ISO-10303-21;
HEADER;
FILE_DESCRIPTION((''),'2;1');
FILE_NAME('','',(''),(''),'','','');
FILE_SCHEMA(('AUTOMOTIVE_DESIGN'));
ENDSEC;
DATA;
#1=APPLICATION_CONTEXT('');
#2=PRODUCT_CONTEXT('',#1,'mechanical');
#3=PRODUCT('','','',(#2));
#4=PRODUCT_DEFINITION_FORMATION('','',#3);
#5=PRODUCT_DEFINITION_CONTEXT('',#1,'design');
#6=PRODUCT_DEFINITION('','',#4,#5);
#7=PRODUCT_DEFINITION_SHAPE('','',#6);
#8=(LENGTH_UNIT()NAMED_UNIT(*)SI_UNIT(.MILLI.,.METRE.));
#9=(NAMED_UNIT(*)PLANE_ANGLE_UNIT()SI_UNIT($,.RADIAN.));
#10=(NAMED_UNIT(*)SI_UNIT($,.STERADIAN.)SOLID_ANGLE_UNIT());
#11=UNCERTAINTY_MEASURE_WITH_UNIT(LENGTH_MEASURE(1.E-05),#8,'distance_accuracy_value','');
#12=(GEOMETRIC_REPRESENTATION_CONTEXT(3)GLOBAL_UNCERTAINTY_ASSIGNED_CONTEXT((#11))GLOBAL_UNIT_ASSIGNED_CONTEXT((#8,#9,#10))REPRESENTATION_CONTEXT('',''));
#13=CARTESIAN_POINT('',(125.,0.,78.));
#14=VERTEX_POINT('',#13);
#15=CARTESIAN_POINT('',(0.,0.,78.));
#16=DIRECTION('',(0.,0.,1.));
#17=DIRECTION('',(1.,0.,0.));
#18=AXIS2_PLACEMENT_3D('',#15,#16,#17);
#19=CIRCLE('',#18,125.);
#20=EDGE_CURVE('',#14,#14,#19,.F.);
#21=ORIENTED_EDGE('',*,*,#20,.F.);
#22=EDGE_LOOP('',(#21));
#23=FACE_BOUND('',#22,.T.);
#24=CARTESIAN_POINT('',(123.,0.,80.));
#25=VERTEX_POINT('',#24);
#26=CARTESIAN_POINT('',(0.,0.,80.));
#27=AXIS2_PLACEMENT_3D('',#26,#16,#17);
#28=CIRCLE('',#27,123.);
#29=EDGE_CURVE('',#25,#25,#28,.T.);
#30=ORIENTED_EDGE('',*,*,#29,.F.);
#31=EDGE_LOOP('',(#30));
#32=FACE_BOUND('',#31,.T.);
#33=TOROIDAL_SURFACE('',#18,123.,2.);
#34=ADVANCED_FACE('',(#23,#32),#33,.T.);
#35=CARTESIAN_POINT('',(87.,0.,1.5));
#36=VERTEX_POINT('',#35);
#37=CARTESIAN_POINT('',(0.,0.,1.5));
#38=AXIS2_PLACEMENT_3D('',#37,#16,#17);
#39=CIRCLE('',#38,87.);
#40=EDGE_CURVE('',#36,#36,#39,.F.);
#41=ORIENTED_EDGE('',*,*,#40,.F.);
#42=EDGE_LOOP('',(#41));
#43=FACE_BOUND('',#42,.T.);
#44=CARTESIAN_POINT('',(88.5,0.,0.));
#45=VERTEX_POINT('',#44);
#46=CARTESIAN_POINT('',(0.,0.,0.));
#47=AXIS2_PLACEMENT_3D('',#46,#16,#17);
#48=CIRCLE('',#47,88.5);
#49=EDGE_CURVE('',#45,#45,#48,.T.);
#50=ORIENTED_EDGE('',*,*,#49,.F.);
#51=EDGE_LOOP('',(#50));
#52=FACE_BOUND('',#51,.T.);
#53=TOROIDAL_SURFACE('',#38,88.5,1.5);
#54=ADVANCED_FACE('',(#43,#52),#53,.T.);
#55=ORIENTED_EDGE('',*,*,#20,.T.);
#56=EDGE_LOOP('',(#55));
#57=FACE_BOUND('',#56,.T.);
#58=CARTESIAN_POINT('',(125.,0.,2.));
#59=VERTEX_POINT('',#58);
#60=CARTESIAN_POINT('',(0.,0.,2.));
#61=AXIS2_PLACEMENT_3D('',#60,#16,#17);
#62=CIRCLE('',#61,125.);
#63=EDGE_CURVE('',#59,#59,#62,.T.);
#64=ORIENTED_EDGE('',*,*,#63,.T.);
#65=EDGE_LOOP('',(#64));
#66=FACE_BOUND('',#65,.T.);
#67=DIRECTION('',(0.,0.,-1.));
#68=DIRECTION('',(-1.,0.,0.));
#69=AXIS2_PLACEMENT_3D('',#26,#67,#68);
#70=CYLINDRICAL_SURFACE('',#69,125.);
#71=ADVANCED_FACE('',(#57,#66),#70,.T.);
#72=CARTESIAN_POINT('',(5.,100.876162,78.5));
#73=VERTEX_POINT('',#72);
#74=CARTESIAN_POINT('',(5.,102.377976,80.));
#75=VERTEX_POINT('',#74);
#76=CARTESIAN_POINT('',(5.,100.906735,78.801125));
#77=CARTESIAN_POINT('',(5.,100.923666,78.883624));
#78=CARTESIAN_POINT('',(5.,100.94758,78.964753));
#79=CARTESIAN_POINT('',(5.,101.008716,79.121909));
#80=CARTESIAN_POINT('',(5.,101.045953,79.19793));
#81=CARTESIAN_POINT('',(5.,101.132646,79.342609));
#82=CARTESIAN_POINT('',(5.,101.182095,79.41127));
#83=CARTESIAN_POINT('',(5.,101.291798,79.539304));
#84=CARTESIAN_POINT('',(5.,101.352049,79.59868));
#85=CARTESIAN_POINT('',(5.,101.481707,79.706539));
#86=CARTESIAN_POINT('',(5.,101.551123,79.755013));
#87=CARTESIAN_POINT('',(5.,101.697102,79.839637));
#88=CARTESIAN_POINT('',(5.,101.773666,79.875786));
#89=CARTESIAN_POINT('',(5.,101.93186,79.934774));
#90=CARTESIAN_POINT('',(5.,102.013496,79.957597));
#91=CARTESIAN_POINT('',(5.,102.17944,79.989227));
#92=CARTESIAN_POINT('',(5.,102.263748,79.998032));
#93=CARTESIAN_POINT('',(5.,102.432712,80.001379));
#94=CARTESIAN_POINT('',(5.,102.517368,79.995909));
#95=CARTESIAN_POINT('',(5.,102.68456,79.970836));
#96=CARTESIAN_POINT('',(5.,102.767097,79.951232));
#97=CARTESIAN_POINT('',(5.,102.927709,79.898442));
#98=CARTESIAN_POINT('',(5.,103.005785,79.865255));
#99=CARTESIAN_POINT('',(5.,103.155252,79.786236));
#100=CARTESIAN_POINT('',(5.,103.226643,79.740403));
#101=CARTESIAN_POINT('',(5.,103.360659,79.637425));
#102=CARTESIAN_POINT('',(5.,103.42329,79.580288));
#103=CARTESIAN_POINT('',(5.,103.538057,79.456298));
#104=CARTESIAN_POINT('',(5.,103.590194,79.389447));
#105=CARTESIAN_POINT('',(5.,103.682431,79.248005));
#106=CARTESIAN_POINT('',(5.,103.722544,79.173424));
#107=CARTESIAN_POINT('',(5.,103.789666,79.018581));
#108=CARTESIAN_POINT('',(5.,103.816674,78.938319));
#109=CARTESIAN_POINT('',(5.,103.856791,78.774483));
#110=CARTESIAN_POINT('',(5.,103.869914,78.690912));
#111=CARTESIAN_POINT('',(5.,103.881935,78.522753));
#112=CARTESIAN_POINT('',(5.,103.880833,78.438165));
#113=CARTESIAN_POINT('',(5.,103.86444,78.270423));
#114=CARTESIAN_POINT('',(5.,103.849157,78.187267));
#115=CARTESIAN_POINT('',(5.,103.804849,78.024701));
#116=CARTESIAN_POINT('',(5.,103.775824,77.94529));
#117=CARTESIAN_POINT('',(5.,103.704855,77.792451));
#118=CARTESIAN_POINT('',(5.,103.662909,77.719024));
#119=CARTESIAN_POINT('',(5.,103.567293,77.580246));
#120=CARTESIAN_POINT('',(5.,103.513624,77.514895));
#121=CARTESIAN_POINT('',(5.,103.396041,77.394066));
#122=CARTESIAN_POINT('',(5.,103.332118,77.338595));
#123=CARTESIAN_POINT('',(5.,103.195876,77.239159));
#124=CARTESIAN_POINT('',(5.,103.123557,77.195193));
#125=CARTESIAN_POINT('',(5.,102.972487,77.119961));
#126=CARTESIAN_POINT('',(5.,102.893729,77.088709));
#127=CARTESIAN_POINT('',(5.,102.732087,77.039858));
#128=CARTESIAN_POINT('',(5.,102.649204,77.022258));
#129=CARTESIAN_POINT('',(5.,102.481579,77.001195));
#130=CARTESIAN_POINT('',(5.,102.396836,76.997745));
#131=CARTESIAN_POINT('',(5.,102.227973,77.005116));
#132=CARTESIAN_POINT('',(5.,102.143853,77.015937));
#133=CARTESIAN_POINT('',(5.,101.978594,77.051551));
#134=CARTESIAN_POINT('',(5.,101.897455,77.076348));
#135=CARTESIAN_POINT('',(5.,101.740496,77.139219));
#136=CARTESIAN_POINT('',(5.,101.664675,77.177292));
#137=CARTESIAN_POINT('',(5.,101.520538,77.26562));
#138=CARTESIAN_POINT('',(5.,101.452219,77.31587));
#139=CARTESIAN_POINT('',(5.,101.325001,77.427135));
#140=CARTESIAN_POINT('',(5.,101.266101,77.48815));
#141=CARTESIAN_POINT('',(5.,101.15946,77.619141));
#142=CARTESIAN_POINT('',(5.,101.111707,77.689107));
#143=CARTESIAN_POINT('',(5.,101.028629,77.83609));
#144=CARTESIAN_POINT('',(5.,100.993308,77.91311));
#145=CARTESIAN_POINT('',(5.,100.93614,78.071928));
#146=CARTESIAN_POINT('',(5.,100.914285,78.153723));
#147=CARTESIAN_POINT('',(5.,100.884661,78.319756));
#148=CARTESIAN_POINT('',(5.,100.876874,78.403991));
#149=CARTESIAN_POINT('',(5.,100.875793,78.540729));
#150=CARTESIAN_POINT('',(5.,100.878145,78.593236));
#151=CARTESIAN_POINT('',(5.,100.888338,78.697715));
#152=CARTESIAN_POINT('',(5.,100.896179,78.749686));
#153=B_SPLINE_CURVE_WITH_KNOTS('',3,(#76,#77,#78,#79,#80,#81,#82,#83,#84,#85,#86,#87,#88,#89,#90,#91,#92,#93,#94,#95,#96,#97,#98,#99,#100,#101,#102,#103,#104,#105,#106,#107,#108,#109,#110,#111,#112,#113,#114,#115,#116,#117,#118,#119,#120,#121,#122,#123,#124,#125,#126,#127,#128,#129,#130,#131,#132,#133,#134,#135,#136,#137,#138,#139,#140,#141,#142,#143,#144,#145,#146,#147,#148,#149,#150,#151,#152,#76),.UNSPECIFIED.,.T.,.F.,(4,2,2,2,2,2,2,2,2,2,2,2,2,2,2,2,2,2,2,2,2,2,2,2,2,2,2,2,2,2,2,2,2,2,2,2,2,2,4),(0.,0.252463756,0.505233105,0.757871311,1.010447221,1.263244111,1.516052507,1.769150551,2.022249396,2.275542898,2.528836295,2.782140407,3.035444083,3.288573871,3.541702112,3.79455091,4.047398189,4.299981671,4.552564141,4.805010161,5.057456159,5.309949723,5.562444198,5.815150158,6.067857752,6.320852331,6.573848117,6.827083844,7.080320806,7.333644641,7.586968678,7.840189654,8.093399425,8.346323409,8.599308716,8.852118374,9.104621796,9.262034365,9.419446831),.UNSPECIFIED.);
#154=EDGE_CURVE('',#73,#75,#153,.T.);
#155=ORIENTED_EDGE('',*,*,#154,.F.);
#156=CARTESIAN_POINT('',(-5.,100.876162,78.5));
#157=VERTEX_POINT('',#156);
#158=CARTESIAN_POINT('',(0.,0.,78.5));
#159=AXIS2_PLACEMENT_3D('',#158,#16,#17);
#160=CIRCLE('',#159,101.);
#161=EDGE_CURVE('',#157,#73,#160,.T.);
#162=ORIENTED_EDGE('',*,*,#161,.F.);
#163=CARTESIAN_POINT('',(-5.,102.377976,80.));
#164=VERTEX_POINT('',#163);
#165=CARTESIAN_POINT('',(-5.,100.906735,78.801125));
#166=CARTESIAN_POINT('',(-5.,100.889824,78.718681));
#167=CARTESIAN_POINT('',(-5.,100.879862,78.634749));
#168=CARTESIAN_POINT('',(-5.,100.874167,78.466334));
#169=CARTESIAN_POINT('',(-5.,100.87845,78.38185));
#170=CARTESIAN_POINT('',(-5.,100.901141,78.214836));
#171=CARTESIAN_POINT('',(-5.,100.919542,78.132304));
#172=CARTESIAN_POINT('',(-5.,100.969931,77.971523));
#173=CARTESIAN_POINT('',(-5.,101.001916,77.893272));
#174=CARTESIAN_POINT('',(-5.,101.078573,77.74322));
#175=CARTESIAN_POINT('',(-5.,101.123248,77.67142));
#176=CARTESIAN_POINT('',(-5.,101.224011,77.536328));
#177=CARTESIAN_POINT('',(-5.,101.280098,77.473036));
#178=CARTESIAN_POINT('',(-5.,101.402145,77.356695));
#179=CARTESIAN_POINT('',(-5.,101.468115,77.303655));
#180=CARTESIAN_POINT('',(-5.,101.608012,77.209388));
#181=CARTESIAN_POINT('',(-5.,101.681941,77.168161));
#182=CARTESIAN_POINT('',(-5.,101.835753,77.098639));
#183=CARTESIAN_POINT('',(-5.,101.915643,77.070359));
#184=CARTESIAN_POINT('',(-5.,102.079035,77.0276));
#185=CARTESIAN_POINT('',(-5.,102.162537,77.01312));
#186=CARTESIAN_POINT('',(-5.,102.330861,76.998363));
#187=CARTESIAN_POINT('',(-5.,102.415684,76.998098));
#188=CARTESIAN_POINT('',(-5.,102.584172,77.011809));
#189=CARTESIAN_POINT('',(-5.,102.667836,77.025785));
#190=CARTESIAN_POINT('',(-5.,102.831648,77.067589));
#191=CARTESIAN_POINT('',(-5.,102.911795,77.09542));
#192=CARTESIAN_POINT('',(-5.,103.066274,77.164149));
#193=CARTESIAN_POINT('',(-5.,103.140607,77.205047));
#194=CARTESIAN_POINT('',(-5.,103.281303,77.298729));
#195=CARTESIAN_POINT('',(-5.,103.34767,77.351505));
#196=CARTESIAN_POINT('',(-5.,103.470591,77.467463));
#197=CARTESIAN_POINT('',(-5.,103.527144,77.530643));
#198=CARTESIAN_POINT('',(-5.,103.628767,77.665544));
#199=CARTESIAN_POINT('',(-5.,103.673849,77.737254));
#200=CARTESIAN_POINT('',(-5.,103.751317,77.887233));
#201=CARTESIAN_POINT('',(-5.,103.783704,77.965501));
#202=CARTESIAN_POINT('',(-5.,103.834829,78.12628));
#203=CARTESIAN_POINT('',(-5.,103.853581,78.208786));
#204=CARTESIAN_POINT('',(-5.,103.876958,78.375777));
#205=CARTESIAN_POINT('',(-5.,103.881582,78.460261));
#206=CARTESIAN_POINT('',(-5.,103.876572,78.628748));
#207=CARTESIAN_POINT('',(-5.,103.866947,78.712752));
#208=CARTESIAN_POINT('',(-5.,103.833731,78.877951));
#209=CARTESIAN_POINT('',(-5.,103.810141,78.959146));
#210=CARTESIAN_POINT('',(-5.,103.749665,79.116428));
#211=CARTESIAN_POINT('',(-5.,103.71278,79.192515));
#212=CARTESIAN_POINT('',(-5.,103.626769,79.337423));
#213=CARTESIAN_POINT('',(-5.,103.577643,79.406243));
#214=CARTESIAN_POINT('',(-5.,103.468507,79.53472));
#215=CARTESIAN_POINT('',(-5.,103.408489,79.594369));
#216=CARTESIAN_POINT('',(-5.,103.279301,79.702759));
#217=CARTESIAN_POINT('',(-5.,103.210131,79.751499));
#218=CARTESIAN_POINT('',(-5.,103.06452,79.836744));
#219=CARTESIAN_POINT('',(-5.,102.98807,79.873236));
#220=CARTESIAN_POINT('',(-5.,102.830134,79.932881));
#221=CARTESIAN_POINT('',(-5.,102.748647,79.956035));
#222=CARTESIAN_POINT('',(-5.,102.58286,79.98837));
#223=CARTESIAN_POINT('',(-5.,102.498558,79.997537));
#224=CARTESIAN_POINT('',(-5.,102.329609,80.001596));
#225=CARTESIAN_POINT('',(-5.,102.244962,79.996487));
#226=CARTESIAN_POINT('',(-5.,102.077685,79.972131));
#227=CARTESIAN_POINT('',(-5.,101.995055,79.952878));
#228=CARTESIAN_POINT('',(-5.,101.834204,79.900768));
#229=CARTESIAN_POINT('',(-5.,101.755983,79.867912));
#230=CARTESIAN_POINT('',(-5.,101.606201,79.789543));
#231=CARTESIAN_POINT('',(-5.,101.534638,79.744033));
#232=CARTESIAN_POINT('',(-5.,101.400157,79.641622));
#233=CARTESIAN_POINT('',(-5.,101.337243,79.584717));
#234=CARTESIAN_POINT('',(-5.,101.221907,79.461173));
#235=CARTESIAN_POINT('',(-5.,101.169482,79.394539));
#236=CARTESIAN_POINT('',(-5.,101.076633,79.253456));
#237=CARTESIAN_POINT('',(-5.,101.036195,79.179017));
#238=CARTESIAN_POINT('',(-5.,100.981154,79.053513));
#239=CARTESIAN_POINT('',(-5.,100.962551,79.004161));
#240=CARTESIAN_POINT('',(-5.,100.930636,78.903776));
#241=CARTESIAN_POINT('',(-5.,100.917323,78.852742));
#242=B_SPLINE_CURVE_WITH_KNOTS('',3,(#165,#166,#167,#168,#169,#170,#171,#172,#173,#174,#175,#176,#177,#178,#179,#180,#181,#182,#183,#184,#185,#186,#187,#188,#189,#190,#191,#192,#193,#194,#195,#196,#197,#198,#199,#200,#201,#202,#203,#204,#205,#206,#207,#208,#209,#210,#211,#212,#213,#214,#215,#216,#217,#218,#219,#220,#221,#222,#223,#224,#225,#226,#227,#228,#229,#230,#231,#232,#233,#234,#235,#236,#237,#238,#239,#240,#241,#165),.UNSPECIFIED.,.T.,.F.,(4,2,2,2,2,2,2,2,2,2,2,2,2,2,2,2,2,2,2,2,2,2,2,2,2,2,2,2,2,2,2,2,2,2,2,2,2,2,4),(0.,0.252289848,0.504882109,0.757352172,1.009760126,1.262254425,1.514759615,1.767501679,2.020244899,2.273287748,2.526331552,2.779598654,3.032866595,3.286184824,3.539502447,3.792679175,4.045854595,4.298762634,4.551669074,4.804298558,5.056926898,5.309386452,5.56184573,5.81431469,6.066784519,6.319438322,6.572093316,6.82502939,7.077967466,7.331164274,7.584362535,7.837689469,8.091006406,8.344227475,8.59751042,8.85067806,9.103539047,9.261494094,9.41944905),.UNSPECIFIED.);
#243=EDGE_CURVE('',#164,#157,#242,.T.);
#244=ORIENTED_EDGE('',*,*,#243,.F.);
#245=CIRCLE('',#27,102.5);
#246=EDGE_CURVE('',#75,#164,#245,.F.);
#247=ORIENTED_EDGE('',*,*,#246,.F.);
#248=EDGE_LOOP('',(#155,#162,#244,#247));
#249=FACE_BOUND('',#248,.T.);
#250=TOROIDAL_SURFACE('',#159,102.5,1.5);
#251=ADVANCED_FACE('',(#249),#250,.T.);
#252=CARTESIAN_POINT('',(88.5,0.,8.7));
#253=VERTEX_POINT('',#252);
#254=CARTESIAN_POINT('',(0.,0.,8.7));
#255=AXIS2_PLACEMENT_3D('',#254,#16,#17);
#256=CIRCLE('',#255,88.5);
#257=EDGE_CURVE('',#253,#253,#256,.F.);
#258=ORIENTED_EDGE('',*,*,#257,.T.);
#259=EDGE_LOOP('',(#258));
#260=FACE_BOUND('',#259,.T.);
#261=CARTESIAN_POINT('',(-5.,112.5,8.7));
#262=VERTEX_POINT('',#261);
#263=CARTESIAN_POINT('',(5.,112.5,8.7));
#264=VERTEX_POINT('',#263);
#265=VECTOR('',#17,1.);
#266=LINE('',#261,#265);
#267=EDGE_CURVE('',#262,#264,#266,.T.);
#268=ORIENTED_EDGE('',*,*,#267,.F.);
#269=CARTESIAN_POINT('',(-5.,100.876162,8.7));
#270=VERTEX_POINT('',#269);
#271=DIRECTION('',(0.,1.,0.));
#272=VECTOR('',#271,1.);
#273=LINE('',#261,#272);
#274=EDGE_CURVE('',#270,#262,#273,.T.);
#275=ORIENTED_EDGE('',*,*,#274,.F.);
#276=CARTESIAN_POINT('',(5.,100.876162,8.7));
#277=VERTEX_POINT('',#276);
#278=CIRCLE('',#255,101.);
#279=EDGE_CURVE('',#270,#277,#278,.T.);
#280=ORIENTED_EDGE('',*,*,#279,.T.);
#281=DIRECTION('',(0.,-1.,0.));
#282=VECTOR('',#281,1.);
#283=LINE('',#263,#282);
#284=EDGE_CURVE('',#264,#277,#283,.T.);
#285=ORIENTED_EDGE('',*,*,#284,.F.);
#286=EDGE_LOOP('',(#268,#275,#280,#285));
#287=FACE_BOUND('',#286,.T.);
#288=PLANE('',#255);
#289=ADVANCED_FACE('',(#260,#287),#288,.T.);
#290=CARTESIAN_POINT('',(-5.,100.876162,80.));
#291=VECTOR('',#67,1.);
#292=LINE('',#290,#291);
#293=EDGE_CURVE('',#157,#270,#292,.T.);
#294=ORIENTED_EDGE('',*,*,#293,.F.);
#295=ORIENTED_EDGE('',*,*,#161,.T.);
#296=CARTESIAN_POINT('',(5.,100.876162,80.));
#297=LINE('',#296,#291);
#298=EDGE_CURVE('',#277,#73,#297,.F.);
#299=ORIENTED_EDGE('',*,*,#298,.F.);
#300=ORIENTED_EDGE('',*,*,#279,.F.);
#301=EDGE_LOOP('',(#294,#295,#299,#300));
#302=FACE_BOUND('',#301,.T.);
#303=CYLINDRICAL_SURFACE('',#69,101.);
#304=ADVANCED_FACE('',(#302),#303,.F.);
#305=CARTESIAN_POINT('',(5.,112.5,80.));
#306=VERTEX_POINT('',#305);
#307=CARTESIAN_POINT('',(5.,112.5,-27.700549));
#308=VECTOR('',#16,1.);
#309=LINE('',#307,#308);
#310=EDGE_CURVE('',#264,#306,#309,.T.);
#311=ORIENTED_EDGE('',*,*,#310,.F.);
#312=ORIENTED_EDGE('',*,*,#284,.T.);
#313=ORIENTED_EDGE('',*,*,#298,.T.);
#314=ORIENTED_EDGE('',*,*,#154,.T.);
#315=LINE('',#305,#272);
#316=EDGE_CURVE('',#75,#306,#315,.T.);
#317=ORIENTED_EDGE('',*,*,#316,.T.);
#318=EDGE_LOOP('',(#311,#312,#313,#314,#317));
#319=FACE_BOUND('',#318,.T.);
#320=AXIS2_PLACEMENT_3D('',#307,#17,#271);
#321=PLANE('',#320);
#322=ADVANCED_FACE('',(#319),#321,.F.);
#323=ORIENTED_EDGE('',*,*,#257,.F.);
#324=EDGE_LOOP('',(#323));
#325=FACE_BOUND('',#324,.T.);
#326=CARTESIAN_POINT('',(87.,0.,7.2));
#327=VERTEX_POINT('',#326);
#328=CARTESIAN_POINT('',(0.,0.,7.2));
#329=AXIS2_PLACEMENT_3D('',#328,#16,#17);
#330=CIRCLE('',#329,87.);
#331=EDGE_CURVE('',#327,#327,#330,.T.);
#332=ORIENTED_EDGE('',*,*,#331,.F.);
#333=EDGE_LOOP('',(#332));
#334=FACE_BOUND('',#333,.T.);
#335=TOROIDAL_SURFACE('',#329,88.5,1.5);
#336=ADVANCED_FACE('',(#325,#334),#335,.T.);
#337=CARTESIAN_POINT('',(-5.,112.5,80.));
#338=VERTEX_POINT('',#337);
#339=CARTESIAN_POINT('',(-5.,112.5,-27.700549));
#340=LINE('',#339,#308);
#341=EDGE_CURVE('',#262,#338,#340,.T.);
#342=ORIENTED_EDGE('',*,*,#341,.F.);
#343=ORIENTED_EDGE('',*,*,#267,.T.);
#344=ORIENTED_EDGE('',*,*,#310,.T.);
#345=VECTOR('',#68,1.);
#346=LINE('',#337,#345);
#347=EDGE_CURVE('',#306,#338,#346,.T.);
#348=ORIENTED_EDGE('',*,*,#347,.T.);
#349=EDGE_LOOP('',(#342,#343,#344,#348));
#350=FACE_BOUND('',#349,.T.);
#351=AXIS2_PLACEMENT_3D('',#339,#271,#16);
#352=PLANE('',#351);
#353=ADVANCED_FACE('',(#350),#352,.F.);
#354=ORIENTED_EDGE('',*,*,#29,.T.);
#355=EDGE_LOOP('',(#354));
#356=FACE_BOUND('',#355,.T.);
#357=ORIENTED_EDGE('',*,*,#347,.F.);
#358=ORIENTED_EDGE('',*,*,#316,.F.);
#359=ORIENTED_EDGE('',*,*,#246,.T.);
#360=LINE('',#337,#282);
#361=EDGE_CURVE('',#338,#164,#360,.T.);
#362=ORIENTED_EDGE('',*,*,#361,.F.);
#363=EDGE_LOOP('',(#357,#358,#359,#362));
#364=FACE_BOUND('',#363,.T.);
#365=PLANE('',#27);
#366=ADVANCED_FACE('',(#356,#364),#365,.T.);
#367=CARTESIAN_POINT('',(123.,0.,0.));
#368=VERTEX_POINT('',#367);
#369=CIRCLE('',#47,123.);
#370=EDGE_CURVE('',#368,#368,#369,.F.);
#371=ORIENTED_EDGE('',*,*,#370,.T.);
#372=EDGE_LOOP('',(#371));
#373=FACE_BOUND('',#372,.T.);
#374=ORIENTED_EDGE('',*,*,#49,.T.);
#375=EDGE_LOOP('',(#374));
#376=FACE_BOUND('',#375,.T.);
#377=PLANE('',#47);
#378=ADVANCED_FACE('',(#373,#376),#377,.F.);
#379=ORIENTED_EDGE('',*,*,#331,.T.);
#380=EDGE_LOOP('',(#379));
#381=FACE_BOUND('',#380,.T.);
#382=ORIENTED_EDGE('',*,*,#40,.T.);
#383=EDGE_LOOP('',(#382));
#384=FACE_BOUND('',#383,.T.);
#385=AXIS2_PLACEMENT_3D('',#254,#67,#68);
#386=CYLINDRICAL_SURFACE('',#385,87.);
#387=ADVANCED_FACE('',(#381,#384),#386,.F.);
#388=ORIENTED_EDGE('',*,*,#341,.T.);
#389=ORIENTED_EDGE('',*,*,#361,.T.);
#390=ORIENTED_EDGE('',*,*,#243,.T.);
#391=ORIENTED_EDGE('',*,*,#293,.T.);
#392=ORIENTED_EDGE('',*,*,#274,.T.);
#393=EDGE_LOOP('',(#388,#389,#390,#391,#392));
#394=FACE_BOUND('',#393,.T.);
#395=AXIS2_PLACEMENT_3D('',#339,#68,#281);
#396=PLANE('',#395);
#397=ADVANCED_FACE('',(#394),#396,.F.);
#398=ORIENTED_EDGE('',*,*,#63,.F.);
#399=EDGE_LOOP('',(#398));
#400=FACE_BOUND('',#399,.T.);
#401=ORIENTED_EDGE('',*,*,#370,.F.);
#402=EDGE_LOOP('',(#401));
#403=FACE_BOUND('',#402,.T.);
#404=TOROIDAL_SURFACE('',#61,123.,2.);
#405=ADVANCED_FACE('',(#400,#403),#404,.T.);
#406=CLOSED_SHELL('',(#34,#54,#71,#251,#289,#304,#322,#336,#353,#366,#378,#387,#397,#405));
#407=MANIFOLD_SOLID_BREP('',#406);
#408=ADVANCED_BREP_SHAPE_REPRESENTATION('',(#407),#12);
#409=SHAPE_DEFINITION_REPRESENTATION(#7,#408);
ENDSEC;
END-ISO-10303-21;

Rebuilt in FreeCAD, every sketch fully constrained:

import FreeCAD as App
import Part
import Sketcher
from FreeCAD import Vector
Q = App.Units.Quantity


def edges_at(feature, points):
    """Names of the edges that pass closest to the given points."""
    edges = feature.Shape.Edges
    near = lambda p: min(range(len(edges)), key=lambda i: edges[i].distToShape(Part.Vertex(*p))[0])
    return sorted({f"Edge{near(p) + 1}" for p in points})


def add_polygon(sketch, points):
    """Adds a closed chain of lines whose ends are joined by coincident constraints."""
    first, n = sketch.GeometryCount, len(points)
    for a, b in zip(points, points[1:] + points[:1]):
        sketch.addGeometry(Part.LineSegment(App.Vector(*a, 0), App.Vector(*b, 0)), False)
    for i in range(n):
        sketch.addConstraint(Sketcher.Constraint("Coincident", first + i, 2, first + (i + 1) % n, 1))

doc = App.newDocument("Part")
body = doc.addObject("PartDesign::Body", "Body")

# Sketch on XY plane
sketch1 = body.newObject("Sketcher::SketchObject", "Sketch")
sketch1.AttachmentSupport = (doc.getObject("XY_Plane"), [""])
sketch1.MapMode = "FlatFace"
sketch1.addGeometry(Part.Circle(Vector(0, 0, 0), Vector(0, 0, 1), 125), False)
sketch1.addGeometry(Part.Circle(Vector(0, 0, 0), Vector(0, 0, 1), 101), False)
sketch1.addConstraint(Sketcher.Constraint("Coincident", 0, 3, -1, 1))
sketch1.addConstraint(Sketcher.Constraint("Coincident", 1, 3, -1, 1))
sketch1.addConstraint(Sketcher.Constraint("Diameter", 0, Q("250 mm")))
sketch1.addConstraint(Sketcher.Constraint("Diameter", 1, Q("202 mm")))
pad1 = body.newObject("PartDesign::Pad", "Pad")
pad1.Profile = sketch1
pad1.Length = 80
doc.recompute()

fillet = body.newObject("PartDesign::Fillet", "Fillet")
fillet.Base = (pad1, edges_at(pad1, [(-125, 0, 0), (-125, 0, 80)]))
fillet.Radius = 2

# Sketch on XY plane
sketch2 = body.newObject("Sketcher::SketchObject", "Sketch001")
sketch2.AttachmentSupport = (doc.getObject("XY_Plane"), [""])
sketch2.MapMode = "FlatFace"
sketch2.addGeometry(Part.Circle(Vector(0, 0, 0), Vector(0, 0, 1), 101), False)
sketch2.addGeometry(Part.Circle(Vector(0, 0, 0), Vector(0, 0, 1), 87), False)
sketch2.addConstraint(Sketcher.Constraint("Coincident", 0, 3, -1, 1))
sketch2.addConstraint(Sketcher.Constraint("Coincident", 1, 3, -1, 1))
sketch2.addConstraint(Sketcher.Constraint("Diameter", 0, Q("202 mm")))
sketch2.addConstraint(Sketcher.Constraint("Diameter", 1, Q("174 mm")))
pad2 = body.newObject("PartDesign::Pad", "Pad001")
pad2.Profile = sketch2
pad2.Length = 8.7
doc.recompute()

fillet2 = body.newObject("PartDesign::Fillet", "Fillet001")
fillet2.Base = (pad2, edges_at(pad2, [(-87, 0, 0), (-87, 0, 8.7), (-101, 0, 80)]))
fillet2.Radius = 1.5

# Sketch on XY plane
sketch3 = body.newObject("Sketcher::SketchObject", "Sketch002")
sketch3.AttachmentSupport = (doc.getObject("XY_Plane"), [""])
sketch3.MapMode = "FlatFace"
sketch3.AttachmentOffset = App.Placement(Vector(0, 0, 80), App.Rotation())
add_polygon(sketch3, [(-5, 112), (-5, 78), (5, 78), (5, 112)])  # lines 0-3
sketch3.addConstraint(Sketcher.Constraint("Vertical", 0))
sketch3.addConstraint(Sketcher.Constraint("Horizontal", 1))
sketch3.addConstraint(Sketcher.Constraint("Vertical", 2))
sketch3.addConstraint(Sketcher.Constraint("Horizontal", 3))
sketch3.addConstraint(Sketcher.Constraint("DistanceX", 1, 1, 1, 2, Q("10 mm")))
sketch3.addConstraint(Sketcher.Constraint("DistanceY", 0, 2, 0, 1, Q("35 mm")))
sketch3.addConstraint(Sketcher.Constraint("DistanceX", 0, 2, -1, 1, Q("5 mm")))
sketch3.addConstraint(Sketcher.Constraint("DistanceY", -1, 1, 0, 2, Q("77.5 mm")))
pocket1 = body.newObject("PartDesign::Pocket", "Pocket")
pocket1.Profile = sketch3
pocket1.Length = 71.3

doc.recompute()
